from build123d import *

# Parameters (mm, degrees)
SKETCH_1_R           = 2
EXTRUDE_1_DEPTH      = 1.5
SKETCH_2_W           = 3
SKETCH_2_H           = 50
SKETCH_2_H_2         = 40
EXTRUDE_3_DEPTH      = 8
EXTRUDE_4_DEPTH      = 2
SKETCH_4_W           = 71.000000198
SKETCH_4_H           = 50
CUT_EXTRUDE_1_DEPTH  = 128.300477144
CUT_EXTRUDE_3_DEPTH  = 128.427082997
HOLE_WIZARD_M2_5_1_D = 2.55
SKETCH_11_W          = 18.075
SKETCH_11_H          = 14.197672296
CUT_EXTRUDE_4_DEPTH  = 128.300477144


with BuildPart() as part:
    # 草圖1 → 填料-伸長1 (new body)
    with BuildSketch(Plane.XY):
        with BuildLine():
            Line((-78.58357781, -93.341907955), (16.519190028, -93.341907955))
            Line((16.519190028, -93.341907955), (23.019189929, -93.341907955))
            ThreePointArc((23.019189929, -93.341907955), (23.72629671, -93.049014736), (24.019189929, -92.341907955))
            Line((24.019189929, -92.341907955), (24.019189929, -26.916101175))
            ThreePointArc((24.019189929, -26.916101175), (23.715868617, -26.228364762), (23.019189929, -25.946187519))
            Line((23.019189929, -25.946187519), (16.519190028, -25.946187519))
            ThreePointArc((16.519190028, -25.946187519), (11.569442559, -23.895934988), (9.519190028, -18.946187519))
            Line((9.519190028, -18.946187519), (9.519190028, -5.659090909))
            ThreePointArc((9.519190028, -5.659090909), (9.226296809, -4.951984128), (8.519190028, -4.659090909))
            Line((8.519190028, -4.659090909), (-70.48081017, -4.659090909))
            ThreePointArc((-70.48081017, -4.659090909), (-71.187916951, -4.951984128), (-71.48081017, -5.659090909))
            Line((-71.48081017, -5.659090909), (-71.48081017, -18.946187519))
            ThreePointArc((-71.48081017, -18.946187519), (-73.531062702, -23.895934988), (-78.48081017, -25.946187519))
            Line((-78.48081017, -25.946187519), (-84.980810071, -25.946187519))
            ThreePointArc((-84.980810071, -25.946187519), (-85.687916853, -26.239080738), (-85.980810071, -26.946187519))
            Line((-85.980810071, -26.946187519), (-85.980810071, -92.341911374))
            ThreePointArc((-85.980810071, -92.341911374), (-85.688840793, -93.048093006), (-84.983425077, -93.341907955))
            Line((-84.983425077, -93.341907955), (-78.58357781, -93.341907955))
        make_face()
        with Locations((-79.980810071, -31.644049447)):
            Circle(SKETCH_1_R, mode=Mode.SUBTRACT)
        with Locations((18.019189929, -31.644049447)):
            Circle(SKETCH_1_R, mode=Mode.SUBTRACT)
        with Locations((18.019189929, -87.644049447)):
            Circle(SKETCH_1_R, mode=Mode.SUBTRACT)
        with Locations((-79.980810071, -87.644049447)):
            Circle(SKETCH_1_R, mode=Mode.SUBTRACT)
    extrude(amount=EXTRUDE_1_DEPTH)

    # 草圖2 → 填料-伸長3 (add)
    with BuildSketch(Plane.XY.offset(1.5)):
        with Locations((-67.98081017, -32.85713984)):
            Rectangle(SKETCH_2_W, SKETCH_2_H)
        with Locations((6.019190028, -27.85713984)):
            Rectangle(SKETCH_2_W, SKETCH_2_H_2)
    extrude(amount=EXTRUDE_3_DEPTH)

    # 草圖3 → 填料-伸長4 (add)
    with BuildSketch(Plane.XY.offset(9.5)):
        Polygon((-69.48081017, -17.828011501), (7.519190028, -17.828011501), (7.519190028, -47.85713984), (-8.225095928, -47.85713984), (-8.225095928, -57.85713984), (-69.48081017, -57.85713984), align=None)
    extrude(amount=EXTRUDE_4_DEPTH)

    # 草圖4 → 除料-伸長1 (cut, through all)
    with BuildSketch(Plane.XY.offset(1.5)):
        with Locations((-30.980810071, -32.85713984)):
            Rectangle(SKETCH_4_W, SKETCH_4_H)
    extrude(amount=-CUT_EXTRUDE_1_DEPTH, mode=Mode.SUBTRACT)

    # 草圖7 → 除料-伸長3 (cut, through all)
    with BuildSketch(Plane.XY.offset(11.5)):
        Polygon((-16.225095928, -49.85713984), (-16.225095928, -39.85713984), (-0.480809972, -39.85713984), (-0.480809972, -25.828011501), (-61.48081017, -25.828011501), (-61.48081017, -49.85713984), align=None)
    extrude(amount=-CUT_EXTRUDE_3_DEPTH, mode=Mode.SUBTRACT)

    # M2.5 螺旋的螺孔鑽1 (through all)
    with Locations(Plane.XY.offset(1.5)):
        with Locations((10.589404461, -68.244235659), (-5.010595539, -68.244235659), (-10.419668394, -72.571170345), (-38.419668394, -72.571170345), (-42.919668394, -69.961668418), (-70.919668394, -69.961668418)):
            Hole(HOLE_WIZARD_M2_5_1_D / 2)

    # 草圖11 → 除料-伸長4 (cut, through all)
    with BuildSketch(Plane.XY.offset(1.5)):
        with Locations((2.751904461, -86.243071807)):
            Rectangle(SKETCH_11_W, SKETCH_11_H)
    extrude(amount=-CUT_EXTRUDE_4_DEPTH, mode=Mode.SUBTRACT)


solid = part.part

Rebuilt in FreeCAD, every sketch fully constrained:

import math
import FreeCAD as App
import Part
import Sketcher
Q = App.Units.Quantity

doc = App.newDocument("Part")
params = doc.addObject("Spreadsheet::Sheet", "Params")
for row, (alias, value) in enumerate([
    ("sketch1_diameter", "4 mm"),
    ("sketch1_radius", "1 mm"),
    ("sketch1_radius2", "7 mm"),
    ("sketch1_width", "79 mm"),
    ("sketch1_width2", "6.5 mm"),
    ("pad1_length", "1.5 mm"),
    ("sketch2_width", "3 mm"),
    ("sketch2_height", "50 mm"),
    ("sketch2_height2", "40 mm"),
    ("pad2_length", "8 mm"),
    ("sketch3_width", "77 mm"),
    ("sketch3_height", "10 mm"),
    ("pad3_length", "2 mm"),
    ("sketch4_width", "71 mm"),
    ("sketch4_height", "50 mm"),
    ("sketch5_width", "61 mm"),
    ("sketch5_height", "10 mm"),
    ("sketch6_diameter", "2.55 mm"),
    ("hole_diameter", "2.55 mm"),
], start=1):
    params.set(f"A{row}", alias)
    params.set(f"B{row}", "=" + value)
    params.setAlias(f"B{row}", alias)

body = doc.addObject("PartDesign::Body", "Body")

# Sketch on XY plane
sketch1 = doc.addObject("Sketcher::SketchObject", "Sketch")
body.addObject(sketch1)
sketch1.AttachmentSupport = (doc.XY_Plane, [""])
sketch1.MapMode = "FlatFace"
sketch1.addGeometry([
    Part.ArcOfCircle(Part.Circle(App.Vector(23.01919, -92.341908, 0), App.Vector(0, 0, 1), 1), math.radians(-90), math.radians(0)),  # 0
    Part.LineSegment(App.Vector(24.01919, -92.341908, 0), App.Vector(24.01919, -26.916101, 0)),  # 1
    Part.ArcOfCircle(Part.Circle(App.Vector(23.019643, -26.946187, 0), App.Vector(0, 0, 1), 1), math.radians(1.724075), math.radians(90.025937)),  # 2
    Part.LineSegment(App.Vector(23.01919, -25.946188, 0), App.Vector(16.51919, -25.946188, 0)),  # 3
    Part.ArcOfCircle(Part.Circle(App.Vector(16.51919, -18.946188, 0), App.Vector(0, 0, 1), 7), math.radians(180), math.radians(270)),  # 4
    Part.LineSegment(App.Vector(9.51919, -18.946188, 0), App.Vector(9.51919, -5.659091, 0)),  # 5
    Part.ArcOfCircle(Part.Circle(App.Vector(8.51919, -5.659091, 0), App.Vector(0, 0, 1), 1), math.radians(0), math.radians(90)),  # 6
    Part.LineSegment(App.Vector(8.51919, -4.659091, 0), App.Vector(-70.48081, -4.659091, 0)),  # 7
    Part.ArcOfCircle(Part.Circle(App.Vector(-70.48081, -5.659091, 0), App.Vector(0, 0, 1), 1), math.radians(90), math.radians(180)),  # 8
    Part.LineSegment(App.Vector(-71.48081, -5.659091, 0), App.Vector(-71.48081, -18.946188, 0)),  # 9
    Part.ArcOfCircle(Part.Circle(App.Vector(-78.48081, -18.946188, 0), App.Vector(0, 0, 1), 7), math.radians(-90), math.radians(0)),  # 10
    Part.LineSegment(App.Vector(-78.48081, -25.946188, 0), App.Vector(-84.98081, -25.946188, 0)),  # 11
    Part.ArcOfCircle(Part.Circle(App.Vector(-84.98081, -26.946188, 0), App.Vector(0, 0, 1), 1), math.radians(90), math.radians(180)),  # 12
    Part.LineSegment(App.Vector(-85.98081, -26.946188, 0), App.Vector(-85.98081, -92.341911, 0)),  # 13
    Part.ArcOfCircle(Part.Circle(App.Vector(-84.98081, -92.341911, 0), App.Vector(0, 0, 1), 1), math.radians(180), math.radians(269.850171)),  # 14
    Part.LineSegment(App.Vector(-84.983425, -93.341908, 0), App.Vector(23.01919, -93.341908, 0)),  # 15
    Part.Circle(App.Vector(-79.98081, -87.644049, 0), App.Vector(0, 0, 1), 2),  # 16
    Part.Circle(App.Vector(18.01919, -87.644049, 0), App.Vector(0, 0, 1), 2),  # 17
    Part.Circle(App.Vector(-79.98081, -31.644049, 0), App.Vector(0, 0, 1), 2),  # 18
    Part.Circle(App.Vector(18.01919, -31.644049, 0), App.Vector(0, 0, 1), 2),  # 19
], False)
sketch1.addConstraint([
    Sketcher.Constraint("Tangent", 0, 2, 1, 1),
    Sketcher.Constraint("Coincident", 1, 2, 2, 1),
    Sketcher.Constraint("Coincident", 2, 2, 3, 1),
    Sketcher.Constraint("Tangent", 3, 2, 4, 2),
    Sketcher.Constraint("Tangent", 4, 1, 5, 1),
    Sketcher.Constraint("Tangent", 5, 2, 6, 1),
    Sketcher.Constraint("Tangent", 6, 2, 7, 1),
    Sketcher.Constraint("Tangent", 7, 2, 8, 1),
    Sketcher.Constraint("Tangent", 8, 2, 9, 1),
    Sketcher.Constraint("Tangent", 9, 2, 10, 2),
    Sketcher.Constraint("Tangent", 10, 1, 11, 1),
    Sketcher.Constraint("Tangent", 11, 2, 12, 1),
    Sketcher.Constraint("Tangent", 12, 2, 13, 1),
    Sketcher.Constraint("Tangent", 13, 2, 14, 1),
    Sketcher.Constraint("Coincident", 14, 2, 15, 1),
    Sketcher.Constraint("Tangent", 15, 2, 0, 1),
    Sketcher.Constraint("Vertical", 1),
    Sketcher.Constraint("Horizontal", 3),
    Sketcher.Constraint("Vertical", 5),
    Sketcher.Constraint("Horizontal", 7),
    Sketcher.Constraint("Vertical", 9),
    Sketcher.Constraint("Horizontal", 11),
    Sketcher.Constraint("Vertical", 13),
    Sketcher.Constraint("Horizontal", 15),
    Sketcher.Constraint("Equal", 0, 2),
    Sketcher.Constraint("Equal", 2, 6),
    Sketcher.Constraint("Equal", 6, 8),
    Sketcher.Constraint("Equal", 4, 10),
    Sketcher.Constraint("Equal", 8, 12),
    Sketcher.Constraint("Equal", 12, 14),
    Sketcher.Constraint("Equal", 16, 17),
    Sketcher.Constraint("Equal", 17, 18),
    Sketcher.Constraint("Equal", 18, 19),
    Sketcher.Constraint("Horizontal", 4, 3, 10, 3),
    Sketcher.Constraint("Horizontal", 16, 3, 17, 3),
    Sketcher.Constraint("Horizontal", 18, 3, 19, 3),
    Sketcher.Constraint("Vertical", 16, 3, 18, 3),
    Sketcher.Constraint("Vertical", 17, 3, 19, 3),
    Sketcher.Constraint("Vertical", 0, 3, 2, 2),
    Sketcher.Constraint("Equal", 3, 11),
    Sketcher.Constraint("Diameter", 16, Q("4 mm")),
    Sketcher.Constraint("Radius", 0, Q("1 mm")),
    Sketcher.Constraint("Radius", 4, Q("7 mm")),
    Sketcher.Constraint("DistanceX", 7, 2, 7, 1, Q("79 mm")),
    Sketcher.Constraint("DistanceX", 3, 2, 3, 1, Q("6.5 mm")),
    Sketcher.Constraint("DistanceX", 14, 3, 16, 3, Q("5 mm")),
    Sketcher.Constraint("DistanceX", 17, 3, 0, 3, Q("5 mm")),
    Sketcher.Constraint("DistanceY", 16, 3, 18, 3, Q("56 mm")),
    Sketcher.Constraint("DistanceY", 1, 2, -1, 1, Q("26.916101 mm")),
    Sketcher.Constraint("DistanceX", 15, 1, 15, 2, Q("108.002615 mm")),
    Sketcher.Constraint("DistanceY", 1, 1, 1, 2, Q("65.425807 mm")),
    Sketcher.Constraint("DistanceY", 5, 1, 5, 2, Q("13.287097 mm")),
    Sketcher.Constraint("DistanceY", 13, 2, 13, 1, Q("65.395724 mm")),
    Sketcher.Constraint("DistanceX", -1, 1, 0, 3, Q("23.01919 mm")),
    Sketcher.Constraint("DistanceY", 16, 3, -1, 1, Q("87.644049 mm")),
])
sketch1.setExpression("Constraints[40]", "Params.sketch1_diameter")
sketch1.setExpression("Constraints[41]", "Params.sketch1_radius")
sketch1.setExpression("Constraints[42]", "Params.sketch1_radius2")
sketch1.setExpression("Constraints[43]", "Params.sketch1_width")
sketch1.setExpression("Constraints[44]", "Params.sketch1_width2")
pad1 = doc.addObject("PartDesign::Pad", "Pad")
body.addObject(pad1)
pad1.Profile = sketch1
pad1.setExpression("Length", "Params.pad1_length")

# Sketch on XY plane
sketch2 = doc.addObject("Sketcher::SketchObject", "Sketch001")
body.addObject(sketch2)
sketch2.AttachmentSupport = (doc.XY_Plane, [""])
sketch2.MapMode = "FlatFace"
sketch2.AttachmentOffset = App.Placement(App.Vector(0, 0, 1.5), App.Rotation())
sketch2.addGeometry([
    Part.LineSegment(App.Vector(-69.48081, -7.85714, 0), App.Vector(-69.48081, -57.85714, 0)),  # 0
    Part.LineSegment(App.Vector(-69.48081, -57.85714, 0), App.Vector(-66.48081, -57.85714, 0)),  # 1
    Part.LineSegment(App.Vector(-66.48081, -57.85714, 0), App.Vector(-66.48081, -7.85714, 0)),  # 2
    Part.LineSegment(App.Vector(-66.48081, -7.85714, 0), App.Vector(-69.48081, -7.85714, 0)),  # 3
    Part.LineSegment(App.Vector(4.51919, -7.85714, 0), App.Vector(4.51919, -47.85714, 0)),  # 4
    Part.LineSegment(App.Vector(4.51919, -47.85714, 0), App.Vector(7.51919, -47.85714, 0)),  # 5
    Part.LineSegment(App.Vector(7.51919, -47.85714, 0), App.Vector(7.51919, -7.85714, 0)),  # 6
    Part.LineSegment(App.Vector(7.51919, -7.85714, 0), App.Vector(4.51919, -7.85714, 0)),  # 7
], False)
sketch2.addConstraint([
    Sketcher.Constraint("Coincident", 0, 2, 1, 1),
    Sketcher.Constraint("Coincident", 1, 2, 2, 1),
    Sketcher.Constraint("Coincident", 2, 2, 3, 1),
    Sketcher.Constraint("Coincident", 3, 2, 0, 1),
    Sketcher.Constraint("Coincident", 4, 2, 5, 1),
    Sketcher.Constraint("Coincident", 5, 2, 6, 1),
    Sketcher.Constraint("Coincident", 6, 2, 7, 1),
    Sketcher.Constraint("Coincident", 7, 2, 4, 1),
    Sketcher.Constraint("Vertical", 0),
    Sketcher.Constraint("Horizontal", 1),
    Sketcher.Constraint("Vertical", 2),
    Sketcher.Constraint("Horizontal", 3),
    Sketcher.Constraint("Vertical", 4),
    Sketcher.Constraint("Horizontal", 5),
    Sketcher.Constraint("Vertical", 6),
    Sketcher.Constraint("Horizontal", 7),
    Sketcher.Constraint("Horizontal", 3, 2, 6, 2),
    Sketcher.Constraint("Equal", 3, 5),
    Sketcher.Constraint("DistanceX", 1, 1, 1, 2, Q("3 mm")),
    Sketcher.Constraint("DistanceY", 0, 2, 0, 1, Q("50 mm")),
    Sketcher.Constraint("DistanceY", 4, 2, 4, 1, Q("40 mm")),
    Sketcher.Constraint("DistanceX", 1, 2, 4, 2, Q("71 mm")),
    Sketcher.Constraint("DistanceX", 0, 2, -1, 1, Q("69.48081 mm")),
    Sketcher.Constraint("DistanceY", 0, 2, -1, 1, Q("57.85714 mm")),
])
sketch2.setExpression("Constraints[18]", "Params.sketch2_width")
sketch2.setExpression("Constraints[19]", "Params.sketch2_height")
sketch2.setExpression("Constraints[20]", "Params.sketch2_height2")
pad2 = doc.addObject("PartDesign::Pad", "Pad001")
body.addObject(pad2)
pad2.Profile = sketch2
pad2.setExpression("Length", "Params.pad2_length")

# Sketch on XY plane
sketch3 = doc.addObject("Sketcher::SketchObject", "Sketch002")
body.addObject(sketch3)
sketch3.AttachmentSupport = (doc.XY_Plane, [""])
sketch3.MapMode = "FlatFace"
sketch3.AttachmentOffset = App.Placement(App.Vector(0, 0, 9.5), App.Rotation())
sketch3.addGeometry([
    Part.LineSegment(App.Vector(7.51919, -17.828012, 0), App.Vector(-69.48081, -17.828012, 0)),  # 0
    Part.LineSegment(App.Vector(-69.48081, -17.828012, 0), App.Vector(-69.48081, -57.85714, 0)),  # 1
    Part.LineSegment(App.Vector(-69.48081, -57.85714, 0), App.Vector(-8.225096, -57.85714, 0)),  # 2
    Part.LineSegment(App.Vector(-8.225096, -57.85714, 0), App.Vector(-8.225096, -47.85714, 0)),  # 3
    Part.LineSegment(App.Vector(-8.225096, -47.85714, 0), App.Vector(7.51919, -47.85714, 0)),  # 4
    Part.LineSegment(App.Vector(7.51919, -47.85714, 0), App.Vector(7.51919, -17.828012, 0)),  # 5
], False)
sketch3.addConstraint([
    Sketcher.Constraint("Coincident", 0, 2, 1, 1),
    Sketcher.Constraint("Coincident", 1, 2, 2, 1),
    Sketcher.Constraint("Coincident", 2, 2, 3, 1),
    Sketcher.Constraint("Coincident", 3, 2, 4, 1),
    Sketcher.Constraint("Coincident", 4, 2, 5, 1),
    Sketcher.Constraint("Coincident", 5, 2, 0, 1),
    Sketcher.Constraint("Horizontal", 0),
    Sketcher.Constraint("Vertical", 1),
    Sketcher.Constraint("Horizontal", 2),
    Sketcher.Constraint("Vertical", 3),
    Sketcher.Constraint("Horizontal", 4),
    Sketcher.Constraint("Vertical", 5),
    Sketcher.Constraint("DistanceX", 0, 2, 0, 1, Q("77 mm")),
    Sketcher.Constraint("DistanceY", 3, 1, 3, 2, Q("10 mm")),
    Sketcher.Constraint("DistanceY", 1, 2, 1, 1, Q("40.029128 mm")),
    Sketcher.Constraint("DistanceX", 2, 1, 2, 2, Q("61.255714 mm")),
    Sketcher.Constraint("DistanceX", 0, 2, -1, 1, Q("69.48081 mm")),
    Sketcher.Constraint("DistanceY", 0, 2, -1, 1, Q("17.828012 mm")),
])
sketch3.setExpression("Constraints[12]", "Params.sketch3_width")
sketch3.setExpression("Constraints[13]", "Params.sketch3_height")
pad3 = doc.addObject("PartDesign::Pad", "Pad002")
body.addObject(pad3)
pad3.Profile = sketch3
pad3.setExpression("Length", "Params.pad3_length")

# Sketch on XY plane
sketch4 = doc.addObject("Sketcher::SketchObject", "Sketch003")
body.addObject(sketch4)
sketch4.AttachmentSupport = (doc.XY_Plane, [""])
sketch4.MapMode = "FlatFace"
sketch4.AttachmentOffset = App.Placement(App.Vector(0, 0, 1.5), App.Rotation())
sketch4.addGeometry([
    Part.LineSegment(App.Vector(-66.48081, -7.85714, 0), App.Vector(-66.48081, -57.85714, 0)),
    Part.LineSegment(App.Vector(-66.48081, -57.85714, 0), App.Vector(4.51919, -57.85714, 0)),
    Part.LineSegment(App.Vector(4.51919, -57.85714, 0), App.Vector(4.51919, -7.85714, 0)),
    Part.LineSegment(App.Vector(4.51919, -7.85714, 0), App.Vector(-66.48081, -7.85714, 0)),
], False)
sketch4.addConstraint([
    Sketcher.Constraint("Coincident", 0, 2, 1, 1),
    Sketcher.Constraint("Coincident", 1, 2, 2, 1),
    Sketcher.Constraint("Coincident", 2, 2, 3, 1),
    Sketcher.Constraint("Coincident", 3, 2, 0, 1),
    Sketcher.Constraint("Vertical", 0),
    Sketcher.Constraint("Horizontal", 1),
    Sketcher.Constraint("Vertical", 2),
    Sketcher.Constraint("Horizontal", 3),
    Sketcher.Constraint("DistanceX", 1, 1, 1, 2, Q("71 mm")),
    Sketcher.Constraint("DistanceY", 0, 2, 0, 1, Q("50 mm")),
    Sketcher.Constraint("DistanceX", 0, 2, -1, 1, Q("66.48081 mm")),
    Sketcher.Constraint("DistanceY", 0, 2, -1, 1, Q("57.85714 mm")),
])
sketch4.setExpression("Constraints[8]", "Params.sketch4_width")
sketch4.setExpression("Constraints[9]", "Params.sketch4_height")
pocket1 = doc.addObject("PartDesign::Pocket", "Pocket")
body.addObject(pocket1)
pocket1.Profile = sketch4
pocket1.Type = "ThroughAll"

# Sketch on XY plane
sketch5 = doc.addObject("Sketcher::SketchObject", "Sketch004")
body.addObject(sketch5)
sketch5.AttachmentSupport = (doc.XY_Plane, [""])
sketch5.MapMode = "FlatFace"
sketch5.AttachmentOffset = App.Placement(App.Vector(0, 0, 11.5), App.Rotation())
sketch5.addGeometry([
    Part.LineSegment(App.Vector(-16.225096, -49.85714, 0), App.Vector(-16.225096, -39.85714, 0)),  # 0
    Part.LineSegment(App.Vector(-16.225096, -39.85714, 0), App.Vector(-0.48081, -39.85714, 0)),  # 1
    Part.LineSegment(App.Vector(-0.48081, -39.85714, 0), App.Vector(-0.48081, -25.828012, 0)),  # 2
    Part.LineSegment(App.Vector(-0.48081, -25.828012, 0), App.Vector(-61.48081, -25.828012, 0)),  # 3
    Part.LineSegment(App.Vector(-61.48081, -25.828012, 0), App.Vector(-61.48081, -49.85714, 0)),  # 4
    Part.LineSegment(App.Vector(-61.48081, -49.85714, 0), App.Vector(-16.225096, -49.85714, 0)),  # 5
], False)
sketch5.addConstraint([
    Sketcher.Constraint("Coincident", 0, 2, 1, 1),
    Sketcher.Constraint("Coincident", 1, 2, 2, 1),
    Sketcher.Constraint("Coincident", 2, 2, 3, 1),
    Sketcher.Constraint("Coincident", 3, 2, 4, 1),
    Sketcher.Constraint("Coincident", 4, 2, 5, 1),
    Sketcher.Constraint("Coincident", 5, 2, 0, 1),
    Sketcher.Constraint("Vertical", 0),
    Sketcher.Constraint("Horizontal", 1),
    Sketcher.Constraint("Vertical", 2),
    Sketcher.Constraint("Horizontal", 3),
    Sketcher.Constraint("Vertical", 4),
    Sketcher.Constraint("Horizontal", 5),
    Sketcher.Constraint("DistanceX", 3, 2, 3, 1, Q("61 mm")),
    Sketcher.Constraint("DistanceY", 0, 1, 0, 2, Q("10 mm")),
    Sketcher.Constraint("DistanceY", 2, 1, 2, 2, Q("14.029128 mm")),
    Sketcher.Constraint("DistanceX", 1, 1, 1, 2, Q("15.744286 mm")),
    Sketcher.Constraint("DistanceY", 0, 2, -1, 1, Q("39.85714 mm")),
    Sketcher.Constraint("DistanceX", 1, 2, -1, 1, Q("0.48081 mm")),
])
sketch5.setExpression("Constraints[12]", "Params.sketch5_width")
sketch5.setExpression("Constraints[13]", "Params.sketch5_height")
pocket2 = doc.addObject("PartDesign::Pocket", "Pocket001")
body.addObject(pocket2)
pocket2.Profile = sketch5
pocket2.Type = "ThroughAll"

# Sketch on XY plane
sketch6 = doc.addObject("Sketcher::SketchObject", "Sketch005")
body.addObject(sketch6)
sketch6.AttachmentSupport = (doc.XY_Plane, [""])
sketch6.MapMode = "FlatFace"
sketch6.AttachmentOffset = App.Placement(App.Vector(0, 0, 1.5), App.Rotation())
sketch6.addGeometry([
    Part.Circle(App.Vector(10.589404, -68.244236, 0), App.Vector(0, 0, 1), 1.275),  # 0
    Part.Circle(App.Vector(-5.010596, -68.244236, 0), App.Vector(0, 0, 1), 1.275),  # 1
    Part.Circle(App.Vector(-10.419668, -72.57117, 0), App.Vector(0, 0, 1), 1.275),  # 2
    Part.Circle(App.Vector(-38.419668, -72.57117, 0), App.Vector(0, 0, 1), 1.275),  # 3
    Part.Circle(App.Vector(-42.919668, -69.961668, 0), App.Vector(0, 0, 1), 1.275),  # 4
    Part.Circle(App.Vector(-70.919668, -69.961668, 0), App.Vector(0, 0, 1), 1.275),  # 5
], False)
sketch6.addConstraint([
    Sketcher.Constraint("Equal", 0, 1),
    Sketcher.Constraint("Equal", 1, 2),
    Sketcher.Constraint("Equal", 2, 3),
    Sketcher.Constraint("Equal", 3, 4),
    Sketcher.Constraint("Equal", 4, 5),
    Sketcher.Constraint("Horizontal", 0, 3, 1, 3),
    Sketcher.Constraint("Horizontal", 2, 3, 3, 3),
    Sketcher.Constraint("Horizontal", 4, 3, 5, 3),
    Sketcher.Constraint("Diameter", 0, Q("2.55 mm")),
    Sketcher.Constraint("DistanceX", 3, 3, 2, 3, Q("28 mm")),
    Sketcher.Constraint("DistanceX", 5, 3, 4, 3, Q("28 mm")),
    Sketcher.Constraint("DistanceX", 1, 3, 0, 3, Q("15.6 mm")),
    Sketcher.Constraint("DistanceX", 4, 3, 3, 3, Q("4.5 mm")),
    Sketcher.Constraint("DistanceY", 3, 3, 4, 3, Q("2.609502 mm")),
    Sketcher.Constraint("DistanceX", 2, 3, -1, 1, Q("10.419668 mm")),
    Sketcher.Constraint("DistanceY", 2, 3, -1, 1, Q("72.57117 mm")),
    Sketcher.Constraint("DistanceX", -1, 1, 0, 3, Q("10.589404 mm")),
    Sketcher.Constraint("DistanceY", 0, 3, -1, 1, Q("68.244236 mm")),
])
sketch6.setExpression("Constraints[8]", "Params.sketch6_diameter")
doc.recompute()
hole = doc.addObject("PartDesign::Hole", "Hole")
body.addObject(hole)
hole.Profile = sketch6
hole.ThreadType = "None"
hole.setExpression("Diameter", "Params.hole_diameter")
hole.DepthType = "ThroughAll"

# Sketch on XY plane
sketch7 = doc.addObject("Sketcher::SketchObject", "Sketch006")
body.addObject(sketch7)
sketch7.AttachmentSupport = (doc.XY_Plane, [""])
sketch7.MapMode = "FlatFace"
sketch7.AttachmentOffset = App.Placement(App.Vector(0, 0, 1.5), App.Rotation())
sketch7.addGeometry([
    Part.LineSegment(App.Vector(-6.285596, -79.144236, 0), App.Vector(-6.285596, -93.341908, 0)),
    Part.LineSegment(App.Vector(-6.285596, -93.341908, 0), App.Vector(11.789404, -93.341908, 0)),
    Part.LineSegment(App.Vector(11.789404, -93.341908, 0), App.Vector(11.789404, -79.144236, 0)),
    Part.LineSegment(App.Vector(11.789404, -79.144236, 0), App.Vector(-6.285596, -79.144236, 0)),
], False)
sketch7.addConstraint([
    Sketcher.Constraint("Coincident", 0, 2, 1, 1),
    Sketcher.Constraint("Coincident", 1, 2, 2, 1),
    Sketcher.Constraint("Coincident", 2, 2, 3, 1),
    Sketcher.Constraint("Coincident", 3, 2, 0, 1),
    Sketcher.Constraint("Vertical", 0),
    Sketcher.Constraint("Horizontal", 1),
    Sketcher.Constraint("Vertical", 2),
    Sketcher.Constraint("Horizontal", 3),
    Sketcher.Constraint("DistanceX", 1, 1, 1, 2, Q("18.075 mm")),
    Sketcher.Constraint("DistanceY", 0, 2, 0, 1, Q("14.197672 mm")),
    Sketcher.Constraint("DistanceX", 0, 2, -1, 1, Q("6.285596 mm")),
    Sketcher.Constraint("DistanceY", 0, 2, -1, 1, Q("93.341908 mm")),
])
pocket3 = doc.addObject("PartDesign::Pocket", "Pocket002")
body.addObject(pocket3)
pocket3.Profile = sketch7
pocket3.Type = "ThroughAll"

doc.recompute()
